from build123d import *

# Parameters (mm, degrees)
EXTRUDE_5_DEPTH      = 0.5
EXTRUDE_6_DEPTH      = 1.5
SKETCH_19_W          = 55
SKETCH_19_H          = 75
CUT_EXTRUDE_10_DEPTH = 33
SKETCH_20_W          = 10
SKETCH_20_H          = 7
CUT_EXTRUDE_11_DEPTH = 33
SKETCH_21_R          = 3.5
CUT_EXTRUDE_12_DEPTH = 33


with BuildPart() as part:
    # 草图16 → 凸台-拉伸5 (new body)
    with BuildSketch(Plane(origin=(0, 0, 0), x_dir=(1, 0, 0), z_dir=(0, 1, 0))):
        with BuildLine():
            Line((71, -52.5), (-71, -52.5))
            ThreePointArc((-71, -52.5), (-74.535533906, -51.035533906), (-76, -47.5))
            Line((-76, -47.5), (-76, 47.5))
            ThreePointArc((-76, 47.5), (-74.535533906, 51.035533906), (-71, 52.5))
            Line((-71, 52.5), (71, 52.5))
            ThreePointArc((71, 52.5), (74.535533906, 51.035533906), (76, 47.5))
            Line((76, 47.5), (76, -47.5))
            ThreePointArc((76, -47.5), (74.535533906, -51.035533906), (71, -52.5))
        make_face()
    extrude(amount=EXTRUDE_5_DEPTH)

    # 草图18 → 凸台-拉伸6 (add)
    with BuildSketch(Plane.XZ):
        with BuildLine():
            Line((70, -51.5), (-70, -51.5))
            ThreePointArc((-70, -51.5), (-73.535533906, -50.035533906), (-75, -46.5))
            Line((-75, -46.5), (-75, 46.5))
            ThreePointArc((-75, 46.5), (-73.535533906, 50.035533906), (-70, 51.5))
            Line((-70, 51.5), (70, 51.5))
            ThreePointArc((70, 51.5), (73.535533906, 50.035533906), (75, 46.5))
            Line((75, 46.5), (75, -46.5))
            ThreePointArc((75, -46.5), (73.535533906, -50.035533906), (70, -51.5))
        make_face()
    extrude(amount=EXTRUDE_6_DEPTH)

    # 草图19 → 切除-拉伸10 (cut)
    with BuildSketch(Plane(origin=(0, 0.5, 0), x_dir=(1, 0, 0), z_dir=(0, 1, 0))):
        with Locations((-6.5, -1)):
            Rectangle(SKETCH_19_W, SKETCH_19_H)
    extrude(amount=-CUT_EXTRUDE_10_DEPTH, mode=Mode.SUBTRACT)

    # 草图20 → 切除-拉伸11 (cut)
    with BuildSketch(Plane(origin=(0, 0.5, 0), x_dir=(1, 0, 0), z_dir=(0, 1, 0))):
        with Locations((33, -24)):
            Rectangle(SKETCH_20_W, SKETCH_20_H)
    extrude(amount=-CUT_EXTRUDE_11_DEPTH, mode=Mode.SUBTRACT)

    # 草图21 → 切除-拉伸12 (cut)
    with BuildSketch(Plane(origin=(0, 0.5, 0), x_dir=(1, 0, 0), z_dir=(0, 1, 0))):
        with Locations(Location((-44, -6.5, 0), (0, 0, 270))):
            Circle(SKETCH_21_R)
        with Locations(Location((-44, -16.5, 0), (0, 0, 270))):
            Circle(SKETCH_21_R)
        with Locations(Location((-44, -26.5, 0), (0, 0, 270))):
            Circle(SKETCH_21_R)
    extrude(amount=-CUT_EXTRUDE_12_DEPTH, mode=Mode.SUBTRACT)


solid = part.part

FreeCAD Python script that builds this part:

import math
import FreeCAD as App
import Part
import Sketcher

doc = App.newDocument("Part")
body = doc.addObject("PartDesign::Body", "Body")

# Sketch on XZ plane
sketch1 = doc.addObject("Sketcher::SketchObject", "Sketch")
body.addObject(sketch1)
sketch1.AttachmentSupport = (doc.XZ_Plane, [""])
sketch1.MapMode = "FlatFace"
sketch1.addGeometry([
    Part.LineSegment(App.Vector(-71, 52, 0), App.Vector(71, 52, 0)),  # 0
    Part.ArcOfCircle(Part.Circle(App.Vector(71, 48, 0), App.Vector(0, 0, 1), 5), math.radians(0), math.radians(90)),  # 1
    Part.LineSegment(App.Vector(76, 48, 0), App.Vector(76, -48, 0)),  # 2
    Part.ArcOfCircle(Part.Circle(App.Vector(71, -48, 0), App.Vector(0, 0, 1), 5), math.radians(-90), math.radians(0)),  # 3
    Part.LineSegment(App.Vector(71, -52, 0), App.Vector(-71, -52, 0)),  # 4
    Part.ArcOfCircle(Part.Circle(App.Vector(-71, -48, 0), App.Vector(0, 0, 1), 5), math.radians(180), math.radians(270)),  # 5
    Part.LineSegment(App.Vector(-76, -48, 0), App.Vector(-76, 48, 0)),  # 6
    Part.ArcOfCircle(Part.Circle(App.Vector(-71, 48, 0), App.Vector(0, 0, 1), 5), math.radians(90), math.radians(180)),  # 7
], False)
sketch1.addConstraint([
    Sketcher.Constraint("Tangent", 0, 2, 1, 2),
    Sketcher.Constraint("Tangent", 1, 1, 2, 1),
    Sketcher.Constraint("Tangent", 2, 2, 3, 2),
    Sketcher.Constraint("Tangent", 3, 1, 4, 1),
    Sketcher.Constraint("Tangent", 4, 2, 5, 2),
    Sketcher.Constraint("Tangent", 5, 1, 6, 1),
    Sketcher.Constraint("Tangent", 6, 2, 7, 2),
    Sketcher.Constraint("Tangent", 7, 1, 0, 1),
    Sketcher.Constraint("Horizontal", 0),
    Sketcher.Constraint("Vertical", 2),
    Sketcher.Constraint("Horizontal", 4),
    Sketcher.Constraint("Vertical", 6),
    Sketcher.Constraint("Equal", 1, 3),
    Sketcher.Constraint("Equal", 3, 5),
    Sketcher.Constraint("Equal", 5, 7),
    Sketcher.Constraint("Symmetric", 1, 3, 5, 3, -1, 1),
    Sketcher.Constraint("Radius", 1, 5.0),
    Sketcher.Constraint("DistanceX", 0, 1, 0, 2, 142.0),
    Sketcher.Constraint("DistanceY", 2, 2, 2, 1, 95.0),
])
pad1 = doc.addObject("PartDesign::Pad", "Pad")
body.addObject(pad1)
pad1.Profile = sketch1
pad1.Length = 0.5
pad1.Reversed = True

# Sketch on XZ plane
sketch2 = doc.addObject("Sketcher::SketchObject", "Sketch001")
body.addObject(sketch2)
sketch2.AttachmentSupport = (doc.XZ_Plane, [""])
sketch2.MapMode = "FlatFace"
sketch2.addGeometry([
    Part.LineSegment(App.Vector(-70, -52, 0), App.Vector(70, -52, 0)),  # 0
    Part.ArcOfCircle(Part.Circle(App.Vector(70, -46, 0), App.Vector(0, 0, 1), 5), math.radians(-90), math.radians(0)),  # 1
    Part.LineSegment(App.Vector(75, -46, 0), App.Vector(75, 46, 0)),  # 2
    Part.ArcOfCircle(Part.Circle(App.Vector(70, 46, 0), App.Vector(0, 0, 1), 5), math.radians(0), math.radians(90)),  # 3
    Part.LineSegment(App.Vector(70, 52, 0), App.Vector(-70, 52, 0)),  # 4
    Part.ArcOfCircle(Part.Circle(App.Vector(-70, 46, 0), App.Vector(0, 0, 1), 5), math.radians(90), math.radians(180)),  # 5
    Part.LineSegment(App.Vector(-75, 46, 0), App.Vector(-75, -46, 0)),  # 6
    Part.ArcOfCircle(Part.Circle(App.Vector(-70, -46, 0), App.Vector(0, 0, 1), 5), math.radians(180), math.radians(270)),  # 7
], False)
sketch2.addConstraint([
    Sketcher.Constraint("Tangent", 0, 2, 1, 1),
    Sketcher.Constraint("Tangent", 1, 2, 2, 1),
    Sketcher.Constraint("Tangent", 2, 2, 3, 1),
    Sketcher.Constraint("Tangent", 3, 2, 4, 1),
    Sketcher.Constraint("Tangent", 4, 2, 5, 1),
    Sketcher.Constraint("Tangent", 5, 2, 6, 1),
    Sketcher.Constraint("Tangent", 6, 2, 7, 1),
    Sketcher.Constraint("Tangent", 7, 2, 0, 1),
    Sketcher.Constraint("Horizontal", 0),
    Sketcher.Constraint("Vertical", 2),
    Sketcher.Constraint("Horizontal", 4),
    Sketcher.Constraint("Vertical", 6),
    Sketcher.Constraint("Equal", 1, 3),
    Sketcher.Constraint("Equal", 3, 5),
    Sketcher.Constraint("Equal", 5, 7),
    Sketcher.Constraint("Symmetric", 1, 3, 5, 3, -1, 1),
    Sketcher.Constraint("Radius", 1, 5.0),
    Sketcher.Constraint("DistanceX", 0, 1, 0, 2, 140.0),
    Sketcher.Constraint("DistanceY", 2, 1, 2, 2, 93.0),
])
pad2 = doc.addObject("PartDesign::Pad", "Pad001")
body.addObject(pad2)
pad2.Profile = sketch2
pad2.Length = 1.5

# Sketch on XZ plane
sketch3 = doc.addObject("Sketcher::SketchObject", "Sketch002")
body.addObject(sketch3)
sketch3.AttachmentSupport = (doc.XZ_Plane, [""])
sketch3.MapMode = "FlatFace"
sketch3.AttachmentOffset = App.Placement(App.Vector(0, 0, -0.5), App.Rotation())
sketch3.addGeometry([
    Part.LineSegment(App.Vector(-34, -36, 0), App.Vector(-34, 38, 0)),
    Part.LineSegment(App.Vector(-34, 38, 0), App.Vector(21, 38, 0)),
    Part.LineSegment(App.Vector(21, 38, 0), App.Vector(21, -36, 0)),
    Part.LineSegment(App.Vector(21, -36, 0), App.Vector(-34, -36, 0)),
], False)
sketch3.addConstraint([
    Sketcher.Constraint("Coincident", 0, 2, 1, 1),
    Sketcher.Constraint("Coincident", 1, 2, 2, 1),
    Sketcher.Constraint("Coincident", 2, 2, 3, 1),
    Sketcher.Constraint("Coincident", 3, 2, 0, 1),
    Sketcher.Constraint("Vertical", 0),
    Sketcher.Constraint("Horizontal", 1),
    Sketcher.Constraint("Vertical", 2),
    Sketcher.Constraint("Horizontal", 3),
    Sketcher.Constraint("DistanceX", 1, 1, 1, 2, 55.0),
    Sketcher.Constraint("DistanceY", 0, 1, 0, 2, 75.0),
    Sketcher.Constraint("DistanceX", 0, 2, -1, 1, 34.0),
    Sketcher.Constraint("DistanceY", -1, 1, 0, 2, 38.5),
])
pocket1 = doc.addObject("PartDesign::Pocket", "Pocket")
body.addObject(pocket1)
pocket1.Profile = sketch3
pocket1.Length = 33
pocket1.Reversed = True

# Sketch on XZ plane
sketch4 = doc.addObject("Sketcher::SketchObject", "Sketch003")
body.addObject(sketch4)
sketch4.AttachmentSupport = (doc.XZ_Plane, [""])
sketch4.MapMode = "FlatFace"
sketch4.AttachmentOffset = App.Placement(App.Vector(0, 0, -0.5), App.Rotation())
sketch4.addGeometry([
    Part.LineSegment(App.Vector(28, 20, 0), App.Vector(28, 28, 0)),
    Part.LineSegment(App.Vector(28, 28, 0), App.Vector(38, 28, 0)),
    Part.LineSegment(App.Vector(38, 28, 0), App.Vector(38, 20, 0)),
    Part.LineSegment(App.Vector(38, 20, 0), App.Vector(28, 20, 0)),
], False)
sketch4.addConstraint([
    Sketcher.Constraint("Coincident", 0, 2, 1, 1),
    Sketcher.Constraint("Coincident", 1, 2, 2, 1),
    Sketcher.Constraint("Coincident", 2, 2, 3, 1),
    Sketcher.Constraint("Coincident", 3, 2, 0, 1),
    Sketcher.Constraint("Vertical", 0),
    Sketcher.Constraint("Horizontal", 1),
    Sketcher.Constraint("Vertical", 2),
    Sketcher.Constraint("Horizontal", 3),
    Sketcher.Constraint("DistanceX", 1, 1, 1, 2, 10.0),
    Sketcher.Constraint("DistanceY", 0, 1, 0, 2, 7.0),
    Sketcher.Constraint("DistanceX", -1, 1, 0, 2, 28.0),
    Sketcher.Constraint("DistanceY", -1, 1, 0, 2, 27.5),
])
pocket2 = doc.addObject("PartDesign::Pocket", "Pocket001")
body.addObject(pocket2)
pocket2.Profile = sketch4
pocket2.Length = 33
pocket2.Reversed = True

# Sketch on XZ plane
sketch5 = doc.addObject("Sketcher::SketchObject", "Sketch004")
body.addObject(sketch5)
sketch5.AttachmentSupport = (doc.XZ_Plane, [""])
sketch5.MapMode = "FlatFace"
sketch5.AttachmentOffset = App.Placement(App.Vector(0, 0, -0.5), App.Rotation())
sketch5.addGeometry([
    Part.Circle(App.Vector(-44, 6.5, 0), App.Vector(0, 0, 1), 3.5),
    Part.Circle(App.Vector(-44, 16.5, 0), App.Vector(0, 0, 1), 3.5),
    Part.Circle(App.Vector(-44, 26.5, 0), App.Vector(0, 0, 1), 3.5),
], False)
sketch5.addConstraint([
    Sketcher.Constraint("Equal", 0, 1),
    Sketcher.Constraint("Equal", 1, 2),
    Sketcher.Constraint("Vertical", 0, 3, 1, 3),
    Sketcher.Constraint("Vertical", 1, 3, 2, 3),
    Sketcher.Constraint("Diameter", 0, 7.0),
    Sketcher.Constraint("DistanceX", 0, 3, -1, 1, 44.0),
    Sketcher.Constraint("DistanceY", 0, 3, 1, 3, 10.0),
    Sketcher.Constraint("DistanceY", 1, 3, 2, 3, 10.0),
    Sketcher.Constraint("DistanceY", -1, 1, 0, 3, 6.5),
])
pocket3 = doc.addObject("PartDesign::Pocket", "Pocket002")
body.addObject(pocket3)
pocket3.Profile = sketch5
pocket3.Length = 33
pocket3.Reversed = True

doc.recompute()
